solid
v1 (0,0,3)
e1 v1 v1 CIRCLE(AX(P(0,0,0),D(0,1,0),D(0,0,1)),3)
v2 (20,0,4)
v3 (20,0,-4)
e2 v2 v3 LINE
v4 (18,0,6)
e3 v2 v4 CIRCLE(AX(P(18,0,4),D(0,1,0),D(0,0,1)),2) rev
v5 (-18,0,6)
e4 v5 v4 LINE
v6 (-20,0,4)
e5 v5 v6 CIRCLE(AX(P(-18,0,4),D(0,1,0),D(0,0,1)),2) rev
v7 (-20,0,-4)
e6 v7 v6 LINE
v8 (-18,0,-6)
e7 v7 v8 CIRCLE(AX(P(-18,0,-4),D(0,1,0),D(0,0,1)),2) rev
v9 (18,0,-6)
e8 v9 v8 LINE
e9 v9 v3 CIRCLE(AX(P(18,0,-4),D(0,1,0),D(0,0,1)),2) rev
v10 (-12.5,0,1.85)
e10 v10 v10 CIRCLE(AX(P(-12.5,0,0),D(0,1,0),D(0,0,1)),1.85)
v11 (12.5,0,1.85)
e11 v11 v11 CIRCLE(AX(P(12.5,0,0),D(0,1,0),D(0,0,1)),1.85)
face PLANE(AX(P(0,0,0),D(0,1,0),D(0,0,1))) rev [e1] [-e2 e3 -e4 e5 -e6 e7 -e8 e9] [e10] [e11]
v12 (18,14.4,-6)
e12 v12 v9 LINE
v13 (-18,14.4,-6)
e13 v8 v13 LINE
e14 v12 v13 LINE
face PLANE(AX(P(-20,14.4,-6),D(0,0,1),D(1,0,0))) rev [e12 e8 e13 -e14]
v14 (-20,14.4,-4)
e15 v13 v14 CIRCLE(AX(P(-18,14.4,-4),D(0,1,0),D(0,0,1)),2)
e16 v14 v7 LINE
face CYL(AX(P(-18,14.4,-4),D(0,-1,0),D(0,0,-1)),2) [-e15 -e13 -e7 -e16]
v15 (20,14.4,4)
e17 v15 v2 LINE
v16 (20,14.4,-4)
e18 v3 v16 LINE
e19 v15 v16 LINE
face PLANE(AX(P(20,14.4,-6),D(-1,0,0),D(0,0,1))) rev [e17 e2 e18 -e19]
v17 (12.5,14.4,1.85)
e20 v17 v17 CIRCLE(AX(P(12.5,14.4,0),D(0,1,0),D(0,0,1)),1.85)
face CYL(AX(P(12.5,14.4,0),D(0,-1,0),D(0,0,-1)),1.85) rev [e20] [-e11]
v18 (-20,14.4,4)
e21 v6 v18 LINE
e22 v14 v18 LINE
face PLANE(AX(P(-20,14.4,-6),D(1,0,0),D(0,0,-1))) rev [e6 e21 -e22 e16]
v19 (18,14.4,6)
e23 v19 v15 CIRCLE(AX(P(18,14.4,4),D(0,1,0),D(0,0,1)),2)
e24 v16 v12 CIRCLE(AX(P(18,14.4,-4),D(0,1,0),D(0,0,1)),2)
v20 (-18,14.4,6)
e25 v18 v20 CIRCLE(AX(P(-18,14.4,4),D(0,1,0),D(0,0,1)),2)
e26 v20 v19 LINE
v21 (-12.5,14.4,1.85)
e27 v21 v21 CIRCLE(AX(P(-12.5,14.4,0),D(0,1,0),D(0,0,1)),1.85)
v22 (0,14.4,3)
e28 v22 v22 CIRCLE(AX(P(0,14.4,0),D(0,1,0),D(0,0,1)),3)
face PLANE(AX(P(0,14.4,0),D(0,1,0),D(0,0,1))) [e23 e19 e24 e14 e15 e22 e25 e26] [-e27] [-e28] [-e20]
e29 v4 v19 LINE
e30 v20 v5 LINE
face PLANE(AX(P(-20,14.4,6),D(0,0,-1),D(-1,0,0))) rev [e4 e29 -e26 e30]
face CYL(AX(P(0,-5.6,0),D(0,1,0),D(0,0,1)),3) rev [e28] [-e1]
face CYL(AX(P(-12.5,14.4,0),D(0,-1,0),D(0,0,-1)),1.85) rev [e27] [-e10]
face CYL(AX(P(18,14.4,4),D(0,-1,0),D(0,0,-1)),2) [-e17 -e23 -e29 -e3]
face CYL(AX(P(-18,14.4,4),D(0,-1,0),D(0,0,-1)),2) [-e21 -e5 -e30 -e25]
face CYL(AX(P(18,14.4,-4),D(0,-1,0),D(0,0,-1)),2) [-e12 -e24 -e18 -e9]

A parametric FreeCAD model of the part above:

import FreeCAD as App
import Part
import Sketcher
from FreeCAD import Vector
Q = App.Units.Quantity


def edges_at(feature, points):
    """Names of the edges that pass closest to the given points."""
    edges = feature.Shape.Edges
    near = lambda p: min(range(len(edges)), key=lambda i: edges[i].distToShape(Part.Vertex(*p))[0])
    return sorted({f"Edge{near(p) + 1}" for p in points})


def add_polygon(sketch, points):
    """Adds a closed chain of lines whose ends are joined by coincident constraints."""
    first, n = sketch.GeometryCount, len(points)
    for a, b in zip(points, points[1:] + points[:1]):
        sketch.addGeometry(Part.LineSegment(App.Vector(*a, 0), App.Vector(*b, 0)), False)
    for i in range(n):
        sketch.addConstraint(Sketcher.Constraint("Coincident", first + i, 2, first + (i + 1) % n, 1))

doc = App.newDocument("Part")
params = doc.addObject("Spreadsheet::Sheet", "Params")
for row, (alias, value) in enumerate([
    ("sketch1_diameter", "3.7 mm"),
    ("sketch1_width", "40 mm"),
    ("sketch1_height", "12 mm"),
    ("pad1_length", "14.4 mm"),
    ("fillet_radius", "2 mm"),
    ("sketch2_diameter", "6 mm"),
    ("pocket1_length", "20 mm"),
], start=1):
    params.set(f"A{row}", alias)
    params.set(f"B{row}", "=" + value)
    params.setAlias(f"B{row}", alias)

body = doc.addObject("PartDesign::Body", "Body")

sketch1 = body.newObject("Sketcher::SketchObject", "Sketch")
sketch1.AttachmentSupport = (doc.getObject("XZ_Plane"), [""])
sketch1.MapMode = "FlatFace"
add_polygon(sketch1, [(-20, -6), (-20, 6), (20, 6), (20, -6)])
sketch1.addGeometry(Part.Circle(Vector(-12.5, 0, 0), Vector(0, 0, 1), 1.9), False)
sketch1.addGeometry(Part.Circle(Vector(12.5, 0, 0), Vector(0, 0, 1), 1.9), False)
sketch1.addConstraint([
    Sketcher.Constraint("Vertical", 0),
    Sketcher.Constraint("Horizontal", 1),
    Sketcher.Constraint("Vertical", 2),
    Sketcher.Constraint("Horizontal", 3),
    Sketcher.Constraint("Equal", 4, 5),
    Sketcher.Constraint("Symmetric", 4, 3, 5, 3, -1, 1),
    Sketcher.Constraint("Symmetric", 0, 2, 2, 2, -1, 1),
    Sketcher.Constraint("PointOnObject", 4, 3, -1),
    Sketcher.Constraint("Diameter", 4, Q("3.7 mm")),
    Sketcher.Constraint("DistanceX", 1, 1, 1, 2, Q("40 mm")),
    Sketcher.Constraint("DistanceY", 0, 1, 0, 2, Q("12 mm")),
    Sketcher.Constraint("DistanceX", 4, 3, 5, 3, Q("25 mm")),
])
sketch1.setExpression("Constraints[12]", "Params.sketch1_diameter")
sketch1.setExpression("Constraints[13]", "Params.sketch1_width")
sketch1.setExpression("Constraints[14]", "Params.sketch1_height")
pad1 = body.newObject("PartDesign::Pad", "Pad")
pad1.Profile = sketch1
pad1.setExpression("Length", "Params.pad1_length")
pad1.Reversed = True
doc.recompute()

fillet = body.newObject("PartDesign::Fillet", "Fillet")
fillet.Base = (pad1, edges_at(pad1, [
    (20, 7.2, 6),
    (-20, 7.2, 6),
    (-20, 7.2, -6),
    (20, 7.2, -6),
]))
fillet.setExpression("Radius", "Params.fillet_radius")

sketch2 = body.newObject("Sketcher::SketchObject", "Sketch001")
sketch2.AttachmentSupport = (doc.getObject("XZ_Plane"), [""])
sketch2.MapMode = "FlatFace"
sketch2.AttachmentOffset = App.Placement(Vector(0, 0, -14.4), App.Rotation())
sketch2.addGeometry(Part.Circle(Vector(0, 0, 0), Vector(0, 0, 1), 3), False)
sketch2.addConstraint([
    Sketcher.Constraint("Coincident", 0, 3, -1, 1),
    Sketcher.Constraint("Diameter", 0, Q("6 mm")),
])
sketch2.setExpression("Constraints[1]", "Params.sketch2_diameter")
pocket1 = body.newObject("PartDesign::Pocket", "Pocket")
pocket1.Profile = sketch2
pocket1.setExpression("Length", "Params.pocket1_length")
pocket1.Reversed = True

doc.recompute()
